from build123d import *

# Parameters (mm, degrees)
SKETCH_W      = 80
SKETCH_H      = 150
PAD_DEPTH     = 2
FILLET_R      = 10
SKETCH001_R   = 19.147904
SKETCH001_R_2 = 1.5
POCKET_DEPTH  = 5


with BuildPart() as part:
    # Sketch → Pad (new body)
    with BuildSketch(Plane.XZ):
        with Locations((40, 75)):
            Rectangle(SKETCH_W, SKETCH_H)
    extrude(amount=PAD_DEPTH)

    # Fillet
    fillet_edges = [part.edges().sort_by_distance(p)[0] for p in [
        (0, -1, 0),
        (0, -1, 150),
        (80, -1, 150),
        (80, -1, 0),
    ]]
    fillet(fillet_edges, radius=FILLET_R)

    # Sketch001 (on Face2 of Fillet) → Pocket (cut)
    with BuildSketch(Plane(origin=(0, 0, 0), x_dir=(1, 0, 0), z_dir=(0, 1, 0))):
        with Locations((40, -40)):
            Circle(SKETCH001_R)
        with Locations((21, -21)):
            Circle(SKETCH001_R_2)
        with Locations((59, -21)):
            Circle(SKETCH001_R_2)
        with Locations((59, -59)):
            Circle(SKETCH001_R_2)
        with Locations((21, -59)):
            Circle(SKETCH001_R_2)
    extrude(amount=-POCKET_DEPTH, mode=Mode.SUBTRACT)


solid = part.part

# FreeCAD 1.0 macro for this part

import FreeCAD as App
import Part
import Sketcher
from FreeCAD import Vector


def edges_at(feature, points):
    """Names of the edges that pass closest to the given points."""
    edges = feature.Shape.Edges
    near = lambda p: min(range(len(edges)), key=lambda i: edges[i].distToShape(Part.Vertex(*p))[0])
    return sorted({f"Edge{near(p) + 1}" for p in points})

doc = App.newDocument("Part")
body = doc.addObject("PartDesign::Body", "Body")

sketch1 = body.newObject("Sketcher::SketchObject", "Sketch")
sketch1.AttachmentSupport = (doc.getObject("XZ_Plane"), [""])
sketch1.MapMode = "FlatFace"
sketch1.addGeometry(Part.LineSegment(Vector(0, 150, 0), Vector(0, 0, 0)), False)
sketch1.addGeometry(Part.LineSegment(Vector(0, 0, 0), Vector(80, 0, 0)), False)
sketch1.addGeometry(Part.LineSegment(Vector(80, 0, 0), Vector(80, 150, 0)), False)
sketch1.addGeometry(Part.LineSegment(Vector(80, 150, 0), Vector(0, 150, 0)), False)
sketch1.addConstraint(Sketcher.Constraint("Coincident", 0, 2, 1, 1))
sketch1.addConstraint(Sketcher.Constraint("Coincident", 1, 2, 2, 1))
sketch1.addConstraint(Sketcher.Constraint("Coincident", 2, 2, 3, 1))
sketch1.addConstraint(Sketcher.Constraint("Coincident", 3, 2, 0, 1))
sketch1.addConstraint(Sketcher.Constraint("Vertical", 0))
sketch1.addConstraint(Sketcher.Constraint("Horizontal", 1))
sketch1.addConstraint(Sketcher.Constraint("Vertical", 2))
sketch1.addConstraint(Sketcher.Constraint("Horizontal", 3))
sketch1.addConstraint(Sketcher.Constraint("Coincident", 0, 2, -1, 1))
sketch1.addConstraint(Sketcher.Constraint("DistanceX", 1, 1, 1, 2, 80.0))
sketch1.addConstraint(Sketcher.Constraint("DistanceY", 0, 2, 0, 1, 150.0))
pad1 = body.newObject("PartDesign::Pad", "Pad")
pad1.Profile = sketch1
pad1.Length = 2
doc.recompute()

fillet = body.newObject("PartDesign::Fillet", "Fillet")
fillet.Base = (pad1, edges_at(pad1, [
    (0, -1, 0),
    (0, -1, 150),
    (80, -1, 150),
    (80, -1, 0),
]))
fillet.Radius = 10

sketch2 = body.newObject("Sketcher::SketchObject", "Sketch001")
sketch2.AttachmentSupport = (doc.getObject("XZ_Plane"), [""])
sketch2.MapMode = "FlatFace"
sketch2.addGeometry(Part.Circle(Vector(40, 40, 0), Vector(0, 0, 1), 19.1), False)
sketch2.addGeometry(Part.Circle(Vector(21, 21, 0), Vector(0, 0, 1), 1.5), False)
sketch2.addGeometry(Part.Circle(Vector(59, 21, 0), Vector(0, 0, 1), 1.5), False)
sketch2.addGeometry(Part.Circle(Vector(59, 59, 0), Vector(0, 0, 1), 1.5), False)
sketch2.addGeometry(Part.Circle(Vector(21, 59, 0), Vector(0, 0, 1), 1.5), False)
sketch2.addConstraint(Sketcher.Constraint("Equal", 1, 2))
sketch2.addConstraint(Sketcher.Constraint("Equal", 2, 3))
sketch2.addConstraint(Sketcher.Constraint("Equal", 3, 4))
sketch2.addConstraint(Sketcher.Constraint("Horizontal", 1, 3, 2, 3))
sketch2.addConstraint(Sketcher.Constraint("Horizontal", 3, 3, 4, 3))
sketch2.addConstraint(Sketcher.Constraint("Vertical", 2, 3, 3, 3))
sketch2.addConstraint(Sketcher.Constraint("Vertical", 1, 3, 4, 3))
sketch2.addConstraint(Sketcher.Constraint("Diameter", 1, 3.0))
sketch2.addConstraint(Sketcher.Constraint("DistanceX", -1, 1, 0, 3, 40.0))
sketch2.addConstraint(Sketcher.Constraint("DistanceY", -1, 1, 0, 3, 40.0))
sketch2.addConstraint(Sketcher.Constraint("DistanceX", -1, 1, 1, 3, 21.0))
sketch2.addConstraint(Sketcher.Constraint("DistanceY", -1, 1, 1, 3, 21.0))
sketch2.addConstraint(Sketcher.Constraint("DistanceX", -1, 1, 2, 3, 59.0))
sketch2.addConstraint(Sketcher.Constraint("DistanceY", -1, 1, 3, 3, 59.0))
sketch2.addConstraint(Sketcher.Constraint("Diameter", 0, 38.295808))
pocket1 = body.newObject("PartDesign::Pocket", "Pocket")
pocket1.Profile = sketch2
pocket1.Length = 5
pocket1.Reversed = True

doc.recompute()
